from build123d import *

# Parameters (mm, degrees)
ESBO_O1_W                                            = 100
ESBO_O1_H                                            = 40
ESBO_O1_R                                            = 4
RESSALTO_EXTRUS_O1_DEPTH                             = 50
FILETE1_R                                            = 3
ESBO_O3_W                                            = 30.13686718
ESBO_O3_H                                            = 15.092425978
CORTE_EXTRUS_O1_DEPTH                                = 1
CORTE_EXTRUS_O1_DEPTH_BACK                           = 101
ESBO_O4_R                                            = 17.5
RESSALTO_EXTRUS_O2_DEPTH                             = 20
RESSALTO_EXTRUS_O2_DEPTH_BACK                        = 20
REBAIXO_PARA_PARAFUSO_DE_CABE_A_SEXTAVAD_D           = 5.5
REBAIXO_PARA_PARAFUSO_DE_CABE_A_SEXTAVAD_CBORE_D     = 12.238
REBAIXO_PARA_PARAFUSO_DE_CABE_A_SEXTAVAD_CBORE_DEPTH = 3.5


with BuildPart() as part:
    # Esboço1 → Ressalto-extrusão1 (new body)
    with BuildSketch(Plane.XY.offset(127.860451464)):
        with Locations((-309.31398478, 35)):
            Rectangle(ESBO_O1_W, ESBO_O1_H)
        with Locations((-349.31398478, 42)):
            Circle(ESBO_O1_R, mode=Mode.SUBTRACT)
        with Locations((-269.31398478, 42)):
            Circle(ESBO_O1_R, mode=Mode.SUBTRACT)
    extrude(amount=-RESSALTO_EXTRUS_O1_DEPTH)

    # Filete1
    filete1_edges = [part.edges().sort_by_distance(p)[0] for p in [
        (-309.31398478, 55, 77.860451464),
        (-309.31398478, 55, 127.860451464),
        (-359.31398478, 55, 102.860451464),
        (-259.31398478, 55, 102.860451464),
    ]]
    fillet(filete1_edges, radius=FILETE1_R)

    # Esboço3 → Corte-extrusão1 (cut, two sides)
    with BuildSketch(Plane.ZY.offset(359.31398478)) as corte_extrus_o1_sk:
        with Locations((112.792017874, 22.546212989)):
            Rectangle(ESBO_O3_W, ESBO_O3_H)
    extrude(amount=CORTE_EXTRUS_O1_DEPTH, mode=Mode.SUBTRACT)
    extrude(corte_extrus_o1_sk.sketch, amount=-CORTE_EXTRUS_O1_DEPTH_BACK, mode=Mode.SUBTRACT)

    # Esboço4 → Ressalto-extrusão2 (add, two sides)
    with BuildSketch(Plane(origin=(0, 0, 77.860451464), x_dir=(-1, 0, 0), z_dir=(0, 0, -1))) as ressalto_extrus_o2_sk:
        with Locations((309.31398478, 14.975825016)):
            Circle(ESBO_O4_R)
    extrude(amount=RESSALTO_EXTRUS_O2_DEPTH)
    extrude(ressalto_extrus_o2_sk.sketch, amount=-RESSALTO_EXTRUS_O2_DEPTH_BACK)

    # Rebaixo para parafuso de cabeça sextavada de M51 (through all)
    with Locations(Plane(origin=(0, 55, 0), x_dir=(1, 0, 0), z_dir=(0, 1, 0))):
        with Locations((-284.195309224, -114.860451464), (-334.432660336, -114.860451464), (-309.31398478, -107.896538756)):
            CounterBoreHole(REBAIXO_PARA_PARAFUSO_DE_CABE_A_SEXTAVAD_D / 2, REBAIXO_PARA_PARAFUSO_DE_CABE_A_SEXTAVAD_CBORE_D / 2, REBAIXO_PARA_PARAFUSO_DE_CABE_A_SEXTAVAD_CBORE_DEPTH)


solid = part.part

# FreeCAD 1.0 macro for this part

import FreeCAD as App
import Part
import Sketcher
from FreeCAD import Vector
Q = App.Units.Quantity


def edges_at(feature, points):
    """Names of the edges that pass closest to the given points."""
    edges = feature.Shape.Edges
    near = lambda p: min(range(len(edges)), key=lambda i: edges[i].distToShape(Part.Vertex(*p))[0])
    return sorted({f"Edge{near(p) + 1}" for p in points})


def add_polygon(sketch, points):
    """Adds a closed chain of lines whose ends are joined by coincident constraints."""
    first, n = sketch.GeometryCount, len(points)
    for a, b in zip(points, points[1:] + points[:1]):
        sketch.addGeometry(Part.LineSegment(App.Vector(*a, 0), App.Vector(*b, 0)), False)
    for i in range(n):
        sketch.addConstraint(Sketcher.Constraint("Coincident", first + i, 2, first + (i + 1) % n, 1))

doc = App.newDocument("Part")
body = doc.addObject("PartDesign::Body", "Body")

# Sketch on XY plane
sketch1 = body.newObject("Sketcher::SketchObject", "Sketch")
sketch1.AttachmentSupport = (doc.getObject("XY_Plane"), [""])
sketch1.MapMode = "FlatFace"
sketch1.AttachmentOffset = App.Placement(Vector(0, 0, 127.860451), App.Rotation())
add_polygon(sketch1, [(-359.313985, 55), (-359.313985, 15), (-259.313985, 15), (-259.313985, 55)])  # lines 0-3
sketch1.addGeometry(Part.Circle(Vector(-349.313985, 42, 0), Vector(0, 0, 1), 4), False)  # 4
sketch1.addGeometry(Part.Circle(Vector(-269.313985, 42, 0), Vector(0, 0, 1), 4), False)  # 5
sketch1.addConstraint(Sketcher.Constraint("Vertical", 0))
sketch1.addConstraint(Sketcher.Constraint("Horizontal", 1))
sketch1.addConstraint(Sketcher.Constraint("Vertical", 2))
sketch1.addConstraint(Sketcher.Constraint("Horizontal", 3))
sketch1.addConstraint(Sketcher.Constraint("Equal", 4, 5))
sketch1.addConstraint(Sketcher.Constraint("Horizontal", 4, 3, 5, 3))
sketch1.addConstraint(Sketcher.Constraint("Diameter", 4, Q("8 mm")))
sketch1.addConstraint(Sketcher.Constraint("DistanceX", 1, 1, 1, 2, Q("100 mm")))
sketch1.addConstraint(Sketcher.Constraint("DistanceY", 0, 2, 0, 1, Q("40 mm")))
sketch1.addConstraint(Sketcher.Constraint("DistanceY", -1, 1, 4, 3, Q("42 mm")))
sketch1.addConstraint(Sketcher.Constraint("DistanceY", -1, 1, 0, 2, Q("15 mm")))
sketch1.addConstraint(Sketcher.Constraint("DistanceX", 4, 3, 5, 3, Q("80 mm")))
sketch1.addConstraint(Sketcher.Constraint("DistanceX", 0, 2, 4, 3, Q("10 mm")))
sketch1.addConstraint(Sketcher.Constraint("DistanceX", 4, 3, -1, 1, Q("349.313985 mm")))
pad1 = body.newObject("PartDesign::Pad", "Pad")
pad1.Profile = sketch1
pad1.Length = 50
pad1.Reversed = True
doc.recompute()

fillet = body.newObject("PartDesign::Fillet", "Fillet")
fillet.Base = (pad1, edges_at(pad1, [
    (-309.314, 55, 77.86),
    (-309.314, 55, 127.86),
    (-359.314, 55, 102.86),
    (-259.314, 55, 102.86),
]))
fillet.Radius = 3

# Sketch on YZ plane
sketch2 = body.newObject("Sketcher::SketchObject", "Sketch001")
sketch2.AttachmentSupport = (doc.getObject("YZ_Plane"), [""])
sketch2.MapMode = "FlatFace"
sketch2.AttachmentOffset = App.Placement(Vector(0, 0, -359.313985), App.Rotation())
add_polygon(sketch2, [(30.092426, 97.723584), (15, 97.723584), (15, 127.860451), (30.092426, 127.860451)])  # lines 0-3
sketch2.addConstraint(Sketcher.Constraint("Horizontal", 0))
sketch2.addConstraint(Sketcher.Constraint("Vertical", 1))
sketch2.addConstraint(Sketcher.Constraint("Horizontal", 2))
sketch2.addConstraint(Sketcher.Constraint("Vertical", 3))
sketch2.addConstraint(Sketcher.Constraint("DistanceX", -1, 1, 0, 2, Q("15 mm")))
sketch2.addConstraint(Sketcher.Constraint("DistanceX", 0, 2, 0, 1, Q("15.092426 mm")))
sketch2.addConstraint(Sketcher.Constraint("DistanceY", 1, 1, 1, 2, Q("30.136867 mm")))
sketch2.addConstraint(Sketcher.Constraint("DistanceY", -1, 1, 1, 2, Q("127.860451 mm")))
pocket1 = body.newObject("PartDesign::Pocket", "Pocket")
pocket1.Profile = sketch2
pocket1.Type = "ThroughAll"
pocket1.Midplane = True

# Sketch on XY plane
sketch3 = body.newObject("Sketcher::SketchObject", "Sketch002")
sketch3.AttachmentSupport = (doc.getObject("XY_Plane"), [""])
sketch3.MapMode = "FlatFace"
sketch3.AttachmentOffset = App.Placement(Vector(0, 0, 77.860451), App.Rotation())
sketch3.addGeometry(Part.Circle(Vector(-309.313985, 14.975825, 0), Vector(0, 0, 1), 17.5), False)
sketch3.addConstraint(Sketcher.Constraint("Diameter", 0, Q("35 mm")))
sketch3.addConstraint(Sketcher.Constraint("DistanceX", 0, 3, -1, 1, Q("309.313985 mm")))
sketch3.addConstraint(Sketcher.Constraint("DistanceY", -1, 1, 0, 3, Q("14.975825 mm")))
pad2 = body.newObject("PartDesign::Pad", "Pad001")
pad2.Profile = sketch3
pad2.Type = "TwoLengths"
pad2.Length = 20
pad2.Length2 = 20
pad2.Reversed = True

# Sketch on XZ plane
sketch4 = body.newObject("Sketcher::SketchObject", "Sketch003")
sketch4.AttachmentSupport = (doc.getObject("XZ_Plane"), [""])
sketch4.MapMode = "FlatFace"
sketch4.AttachmentOffset = App.Placement(Vector(0, 0, -55), App.Rotation())
sketch4.addGeometry(Part.Circle(Vector(-284.195309, 114.860451, 0), Vector(0, 0, 1), 2.75), False)
sketch4.addGeometry(Part.Circle(Vector(-334.43266, 114.860451, 0), Vector(0, 0, 1), 2.75), False)
sketch4.addGeometry(Part.Circle(Vector(-309.313985, 107.896539, 0), Vector(0, 0, 1), 2.75), False)
sketch4.addConstraint(Sketcher.Constraint("Equal", 0, 1))
sketch4.addConstraint(Sketcher.Constraint("Equal", 1, 2))
sketch4.addConstraint(Sketcher.Constraint("Horizontal", 0, 3, 1, 3))
sketch4.addConstraint(Sketcher.Constraint("Diameter", 0, Q("5.5 mm")))
sketch4.addConstraint(Sketcher.Constraint("DistanceX", 0, 3, -1, 1, Q("284.195309 mm")))
sketch4.addConstraint(Sketcher.Constraint("DistanceY", -1, 1, 0, 3, Q("114.860451 mm")))
sketch4.addConstraint(Sketcher.Constraint("DistanceX", 1, 3, -1, 1, Q("334.43266 mm")))
sketch4.addConstraint(Sketcher.Constraint("DistanceY", -1, 1, 2, 3, Q("107.896539 mm")))
sketch4.addConstraint(Sketcher.Constraint("DistanceX", 2, 3, -1, 1, Q("309.313985 mm")))
doc.recompute()
hole = body.newObject("PartDesign::Hole", "Hole")
hole.Profile = sketch4
hole.ThreadType = "None"
hole.Diameter = 5.5
hole.DepthType = "ThroughAll"
hole.HoleCutType = "Counterbore"
hole.HoleCutDiameter = 12.238
hole.HoleCutDepth = 3.5
hole.Reversed = True

doc.recompute()
